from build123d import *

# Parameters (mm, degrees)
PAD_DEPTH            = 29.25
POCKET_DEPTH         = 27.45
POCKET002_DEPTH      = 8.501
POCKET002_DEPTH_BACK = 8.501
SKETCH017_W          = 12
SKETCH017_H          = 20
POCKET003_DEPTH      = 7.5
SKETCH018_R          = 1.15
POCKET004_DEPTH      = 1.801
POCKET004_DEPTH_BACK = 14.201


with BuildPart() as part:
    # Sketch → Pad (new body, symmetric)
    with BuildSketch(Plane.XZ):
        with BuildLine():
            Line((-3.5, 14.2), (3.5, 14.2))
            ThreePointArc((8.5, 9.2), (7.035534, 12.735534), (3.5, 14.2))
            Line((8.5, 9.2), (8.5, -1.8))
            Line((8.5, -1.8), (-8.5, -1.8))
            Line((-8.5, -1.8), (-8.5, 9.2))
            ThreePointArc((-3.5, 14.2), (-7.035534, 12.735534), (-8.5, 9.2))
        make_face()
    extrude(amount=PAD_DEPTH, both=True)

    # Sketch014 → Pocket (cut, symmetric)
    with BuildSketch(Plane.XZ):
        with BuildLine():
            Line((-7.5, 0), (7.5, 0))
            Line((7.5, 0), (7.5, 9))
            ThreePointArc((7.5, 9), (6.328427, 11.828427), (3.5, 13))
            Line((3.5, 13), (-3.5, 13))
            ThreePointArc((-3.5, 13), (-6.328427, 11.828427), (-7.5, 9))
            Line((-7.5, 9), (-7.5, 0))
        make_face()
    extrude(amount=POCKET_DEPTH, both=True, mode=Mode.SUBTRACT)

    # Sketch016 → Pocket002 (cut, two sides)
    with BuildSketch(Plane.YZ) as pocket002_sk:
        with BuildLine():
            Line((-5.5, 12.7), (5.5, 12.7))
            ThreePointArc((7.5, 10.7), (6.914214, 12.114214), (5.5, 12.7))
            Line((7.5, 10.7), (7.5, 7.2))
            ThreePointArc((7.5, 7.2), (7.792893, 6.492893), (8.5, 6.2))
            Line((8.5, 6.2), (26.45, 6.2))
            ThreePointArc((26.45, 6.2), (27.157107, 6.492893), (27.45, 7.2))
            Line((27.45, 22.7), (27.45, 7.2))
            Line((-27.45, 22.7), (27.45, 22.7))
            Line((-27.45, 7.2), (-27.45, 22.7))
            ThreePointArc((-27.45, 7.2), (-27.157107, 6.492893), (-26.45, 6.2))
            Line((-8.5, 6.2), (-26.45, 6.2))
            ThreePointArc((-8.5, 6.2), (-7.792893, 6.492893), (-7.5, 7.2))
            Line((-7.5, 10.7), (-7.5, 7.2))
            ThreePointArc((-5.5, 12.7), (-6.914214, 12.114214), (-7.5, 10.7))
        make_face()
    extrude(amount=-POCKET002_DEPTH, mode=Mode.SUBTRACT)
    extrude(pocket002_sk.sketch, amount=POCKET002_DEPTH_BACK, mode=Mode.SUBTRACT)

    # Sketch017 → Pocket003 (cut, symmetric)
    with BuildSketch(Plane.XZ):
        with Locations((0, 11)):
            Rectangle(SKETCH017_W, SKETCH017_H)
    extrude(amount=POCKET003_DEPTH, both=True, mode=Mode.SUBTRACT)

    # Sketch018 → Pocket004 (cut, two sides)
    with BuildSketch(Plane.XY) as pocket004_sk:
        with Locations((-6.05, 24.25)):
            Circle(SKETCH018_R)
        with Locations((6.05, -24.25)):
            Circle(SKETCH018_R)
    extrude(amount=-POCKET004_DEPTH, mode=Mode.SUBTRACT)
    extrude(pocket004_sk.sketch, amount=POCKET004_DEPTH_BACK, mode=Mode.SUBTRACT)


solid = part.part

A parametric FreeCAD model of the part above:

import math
import FreeCAD as App
import Part
import Sketcher

V = App.Vector

doc = App.newDocument("Part")
body = doc.addObject("PartDesign::Body", "Body")

sketch1 = body.newObject("Sketcher::SketchObject", "Sketch")
sketch1.AttachmentSupport = (doc.getObject("XZ_Plane"), [""])
sketch1.MapMode = "FlatFace"
sketch1.addGeometry(Part.LineSegment(V(3.5, 14.2, 0), V(-3.5, 14.2, 0)), False)
sketch1.addGeometry(Part.ArcOfCircle(Part.Circle(V(-3.5, 9.2, 0), V(0, 0, 1), 5), math.radians(90), math.radians(180)), False)
sketch1.addGeometry(Part.LineSegment(V(-8.5, 9.2, 0), V(-8.5, -1.8, 0)), False)
sketch1.addGeometry(Part.LineSegment(V(-8.5, -1.8, 0), V(8.5, -1.8, 0)), False)
sketch1.addGeometry(Part.LineSegment(V(8.5, -1.8, 0), V(8.5, 9.2, 0)), False)
sketch1.addGeometry(Part.ArcOfCircle(Part.Circle(V(3.5, 9.2, 0), V(0, 0, 1), 5), math.radians(0), math.radians(90)), False)
sketch1.addConstraint(Sketcher.Constraint("Tangent", 0, 2, 1, 1))
sketch1.addConstraint(Sketcher.Constraint("Tangent", 1, 2, 2, 1))
sketch1.addConstraint(Sketcher.Constraint("Coincident", 2, 2, 3, 1))
sketch1.addConstraint(Sketcher.Constraint("Coincident", 3, 2, 4, 1))
sketch1.addConstraint(Sketcher.Constraint("Tangent", 4, 2, 5, 1))
sketch1.addConstraint(Sketcher.Constraint("Tangent", 5, 2, 0, 1))
sketch1.addConstraint(Sketcher.Constraint("Horizontal", 0))
sketch1.addConstraint(Sketcher.Constraint("Vertical", 2))
sketch1.addConstraint(Sketcher.Constraint("Horizontal", 3))
sketch1.addConstraint(Sketcher.Constraint("Vertical", 4))
sketch1.addConstraint(Sketcher.Constraint("Equal", 1, 5))
sketch1.addConstraint(Sketcher.Constraint("Radius", 1, 5.0))
sketch1.addConstraint(Sketcher.Constraint("DistanceX", 0, 2, 0, 1, 7.0))
sketch1.addConstraint(Sketcher.Constraint("DistanceY", 2, 2, 2, 1, 11.0))
sketch1.addConstraint(Sketcher.Constraint("DistanceX", 1, 3, -1, 1, 3.5))
sketch1.addConstraint(Sketcher.Constraint("DistanceY", -1, 1, 1, 3, 9.2))
pad1 = body.newObject("PartDesign::Pad", "Pad")
pad1.Profile = sketch1
pad1.Length = 58.5
pad1.Midplane = True

sketch2 = body.newObject("Sketcher::SketchObject", "Sketch001")
sketch2.AttachmentSupport = (doc.getObject("XZ_Plane"), [""])
sketch2.MapMode = "FlatFace"
sketch2.addGeometry(Part.LineSegment(V(-7.5, 0, 0), V(7.5, 0, 0)), False)
sketch2.addGeometry(Part.LineSegment(V(7.5, 0, 0), V(7.5, 9, 0)), False)
sketch2.addGeometry(Part.ArcOfCircle(Part.Circle(V(3.5, 9, 0), V(0, 0, 1), 4), math.radians(0), math.radians(90)), False)
sketch2.addGeometry(Part.LineSegment(V(3.5, 13, 0), V(-3.5, 13, 0)), False)
sketch2.addGeometry(Part.ArcOfCircle(Part.Circle(V(-3.5, 9, 0), V(0, 0, 1), 4), math.radians(90), math.radians(180)), False)
sketch2.addGeometry(Part.LineSegment(V(-7.5, 9, 0), V(-7.5, 0, 0)), False)
sketch2.addConstraint(Sketcher.Constraint("Coincident", 0, 2, 1, 1))
sketch2.addConstraint(Sketcher.Constraint("Tangent", 1, 2, 2, 1))
sketch2.addConstraint(Sketcher.Constraint("Tangent", 2, 2, 3, 1))
sketch2.addConstraint(Sketcher.Constraint("Tangent", 3, 2, 4, 1))
sketch2.addConstraint(Sketcher.Constraint("Tangent", 4, 2, 5, 1))
sketch2.addConstraint(Sketcher.Constraint("Coincident", 5, 2, 0, 1))
sketch2.addConstraint(Sketcher.Constraint("Horizontal", 0))
sketch2.addConstraint(Sketcher.Constraint("Vertical", 1))
sketch2.addConstraint(Sketcher.Constraint("Horizontal", 3))
sketch2.addConstraint(Sketcher.Constraint("Vertical", 5))
sketch2.addConstraint(Sketcher.Constraint("Equal", 2, 4))
sketch2.addConstraint(Sketcher.Constraint("Symmetric", 0, 2, 5, 2, -1, 1))
sketch2.addConstraint(Sketcher.Constraint("Radius", 2, 4.0))
sketch2.addConstraint(Sketcher.Constraint("DistanceX", 0, 1, 0, 2, 15.0))
sketch2.addConstraint(Sketcher.Constraint("DistanceY", 1, 1, 1, 2, 9.0))
pocket1 = body.newObject("PartDesign::Pocket", "Pocket")
pocket1.Profile = sketch2
pocket1.Length = 54.9
pocket1.Midplane = True

sketch3 = body.newObject("Sketcher::SketchObject", "Sketch002")
sketch3.AttachmentSupport = (doc.getObject("YZ_Plane"), [""])
sketch3.MapMode = "FlatFace"
sketch3.addGeometry(Part.LineSegment(V(-5.5, 12.7, 0), V(5.5, 12.7, 0)), False)
sketch3.addGeometry(Part.ArcOfCircle(Part.Circle(V(5.5, 10.7, 0), V(0, 0, 1), 2), math.radians(0), math.radians(90)), False)
sketch3.addGeometry(Part.LineSegment(V(7.5, 10.7, 0), V(7.5, 7.2, 0)), False)
sketch3.addGeometry(Part.ArcOfCircle(Part.Circle(V(8.5, 7.2, 0), V(0, 0, 1), 1), math.radians(180), math.radians(270)), False)
sketch3.addGeometry(Part.LineSegment(V(8.5, 6.2, 0), V(26.4, 6.2, 0)), False)
sketch3.addGeometry(Part.ArcOfCircle(Part.Circle(V(26.5, 7.2, 0), V(0, 0, 1), 1), math.radians(-90), math.radians(0)), False)
sketch3.addGeometry(Part.LineSegment(V(27.4, 7.2, 0), V(27.4, 22.7, 0)), False)
sketch3.addGeometry(Part.LineSegment(V(27.4, 22.7, 0), V(-27.4, 22.7, 0)), False)
sketch3.addGeometry(Part.LineSegment(V(-27.4, 22.7, 0), V(-27.4, 7.2, 0)), False)
sketch3.addGeometry(Part.ArcOfCircle(Part.Circle(V(-26.5, 7.2, 0), V(0, 0, 1), 1), math.radians(180), math.radians(270)), False)
sketch3.addGeometry(Part.LineSegment(V(-26.4, 6.2, 0), V(-8.5, 6.2, 0)), False)
sketch3.addGeometry(Part.ArcOfCircle(Part.Circle(V(-8.5, 7.2, 0), V(0, 0, 1), 1), math.radians(-90), math.radians(0)), False)
sketch3.addGeometry(Part.LineSegment(V(-7.5, 7.2, 0), V(-7.5, 10.7, 0)), False)
sketch3.addGeometry(Part.ArcOfCircle(Part.Circle(V(-5.5, 10.7, 0), V(0, 0, 1), 2), math.radians(90), math.radians(180)), False)
sketch3.addConstraint(Sketcher.Constraint("Tangent", 0, 2, 1, 2))
sketch3.addConstraint(Sketcher.Constraint("Tangent", 1, 1, 2, 1))
sketch3.addConstraint(Sketcher.Constraint("Tangent", 2, 2, 3, 1))
sketch3.addConstraint(Sketcher.Constraint("Tangent", 3, 2, 4, 1))
sketch3.addConstraint(Sketcher.Constraint("Tangent", 4, 2, 5, 1))
sketch3.addConstraint(Sketcher.Constraint("Tangent", 5, 2, 6, 1))
sketch3.addConstraint(Sketcher.Constraint("Coincident", 6, 2, 7, 1))
sketch3.addConstraint(Sketcher.Constraint("Coincident", 7, 2, 8, 1))
sketch3.addConstraint(Sketcher.Constraint("Tangent", 8, 2, 9, 1))
sketch3.addConstraint(Sketcher.Constraint("Tangent", 9, 2, 10, 1))
sketch3.addConstraint(Sketcher.Constraint("Tangent", 10, 2, 11, 1))
sketch3.addConstraint(Sketcher.Constraint("Tangent", 11, 2, 12, 1))
sketch3.addConstraint(Sketcher.Constraint("Tangent", 12, 2, 13, 2))
sketch3.addConstraint(Sketcher.Constraint("Tangent", 13, 1, 0, 1))
sketch3.addConstraint(Sketcher.Constraint("Horizontal", 0))
sketch3.addConstraint(Sketcher.Constraint("Vertical", 2))
sketch3.addConstraint(Sketcher.Constraint("Horizontal", 4))
sketch3.addConstraint(Sketcher.Constraint("Vertical", 6))
sketch3.addConstraint(Sketcher.Constraint("Horizontal", 7))
sketch3.addConstraint(Sketcher.Constraint("Vertical", 8))
sketch3.addConstraint(Sketcher.Constraint("Horizontal", 10))
sketch3.addConstraint(Sketcher.Constraint("Vertical", 12))
sketch3.addConstraint(Sketcher.Constraint("Equal", 3, 5))
sketch3.addConstraint(Sketcher.Constraint("Equal", 5, 9))
sketch3.addConstraint(Sketcher.Constraint("Equal", 9, 11))
sketch3.addConstraint(Sketcher.Constraint("Equal", 1, 13))
sketch3.addConstraint(Sketcher.Constraint("Symmetric", 5, 3, 9, 3, -2))
sketch3.addConstraint(Sketcher.Constraint("Equal", 4, 10))
sketch3.addConstraint(Sketcher.Constraint("Radius", 1, 1.999999))
sketch3.addConstraint(Sketcher.Constraint("Radius", 3, 0.999999))
sketch3.addConstraint(Sketcher.Constraint("DistanceX", 0, 1, 0, 2, 11.0))
sketch3.addConstraint(Sketcher.Constraint("DistanceX", 7, 2, 7, 1, 54.9))
sketch3.addConstraint(Sketcher.Constraint("DistanceY", 2, 2, 2, 1, 3.5))
sketch3.addConstraint(Sketcher.Constraint("DistanceY", 6, 1, 6, 2, 15.5))
sketch3.addConstraint(Sketcher.Constraint("DistanceY", -1, 1, 1, 3, 10.700001))
pocket2 = body.newObject("PartDesign::Pocket", "Pocket001")
pocket2.Profile = sketch3
pocket2.Type = "ThroughAll"
pocket2.Midplane = True

sketch4 = body.newObject("Sketcher::SketchObject", "Sketch003")
sketch4.AttachmentSupport = (doc.getObject("XZ_Plane"), [""])
sketch4.MapMode = "FlatFace"
sketch4.addGeometry(Part.LineSegment(V(-6, 21, 0), V(-6, 1, 0)), False)
sketch4.addGeometry(Part.LineSegment(V(-6, 1, 0), V(6, 1, 0)), False)
sketch4.addGeometry(Part.LineSegment(V(6, 1, 0), V(6, 21, 0)), False)
sketch4.addGeometry(Part.LineSegment(V(6, 21, 0), V(-6, 21, 0)), False)
sketch4.addConstraint(Sketcher.Constraint("Coincident", 0, 2, 1, 1))
sketch4.addConstraint(Sketcher.Constraint("Coincident", 1, 2, 2, 1))
sketch4.addConstraint(Sketcher.Constraint("Coincident", 2, 2, 3, 1))
sketch4.addConstraint(Sketcher.Constraint("Coincident", 3, 2, 0, 1))
sketch4.addConstraint(Sketcher.Constraint("Vertical", 0))
sketch4.addConstraint(Sketcher.Constraint("Horizontal", 1))
sketch4.addConstraint(Sketcher.Constraint("Vertical", 2))
sketch4.addConstraint(Sketcher.Constraint("Horizontal", 3))
sketch4.addConstraint(Sketcher.Constraint("DistanceX", 1, 1, 1, 2, 12.0))
sketch4.addConstraint(Sketcher.Constraint("DistanceY", 0, 2, 0, 1, 20.0))
sketch4.addConstraint(Sketcher.Constraint("DistanceX", 0, 2, -1, 1, 6.0))
sketch4.addConstraint(Sketcher.Constraint("DistanceY", -1, 1, 0, 2, 1.0))
pocket3 = body.newObject("PartDesign::Pocket", "Pocket002")
pocket3.Profile = sketch4
pocket3.Length = 15
pocket3.Midplane = True

sketch5 = body.newObject("Sketcher::SketchObject", "Sketch004")
sketch5.AttachmentSupport = (doc.getObject("XY_Plane"), [""])
sketch5.MapMode = "FlatFace"
sketch5.addGeometry(Part.Circle(V(-6, 24.2, 0), V(0, 0, 1), 1.1), False)
sketch5.addGeometry(Part.Circle(V(6, -24.2, 0), V(0, 0, 1), 1.1), False)
sketch5.addConstraint(Sketcher.Constraint("Equal", 0, 1))
sketch5.addConstraint(Sketcher.Constraint("Symmetric", 0, 3, 1, 3, -1, 1))
sketch5.addConstraint(Sketcher.Constraint("Diameter", 0, 2.3))
sketch5.addConstraint(Sketcher.Constraint("DistanceX", 0, 3, 1, 3, 12.1))
sketch5.addConstraint(Sketcher.Constraint("DistanceY", 1, 3, 0, 3, 48.5))
pocket4 = body.newObject("PartDesign::Pocket", "Pocket003")
pocket4.Profile = sketch5
pocket4.Type = "ThroughAll"
pocket4.Midplane = True

doc.recompute()
